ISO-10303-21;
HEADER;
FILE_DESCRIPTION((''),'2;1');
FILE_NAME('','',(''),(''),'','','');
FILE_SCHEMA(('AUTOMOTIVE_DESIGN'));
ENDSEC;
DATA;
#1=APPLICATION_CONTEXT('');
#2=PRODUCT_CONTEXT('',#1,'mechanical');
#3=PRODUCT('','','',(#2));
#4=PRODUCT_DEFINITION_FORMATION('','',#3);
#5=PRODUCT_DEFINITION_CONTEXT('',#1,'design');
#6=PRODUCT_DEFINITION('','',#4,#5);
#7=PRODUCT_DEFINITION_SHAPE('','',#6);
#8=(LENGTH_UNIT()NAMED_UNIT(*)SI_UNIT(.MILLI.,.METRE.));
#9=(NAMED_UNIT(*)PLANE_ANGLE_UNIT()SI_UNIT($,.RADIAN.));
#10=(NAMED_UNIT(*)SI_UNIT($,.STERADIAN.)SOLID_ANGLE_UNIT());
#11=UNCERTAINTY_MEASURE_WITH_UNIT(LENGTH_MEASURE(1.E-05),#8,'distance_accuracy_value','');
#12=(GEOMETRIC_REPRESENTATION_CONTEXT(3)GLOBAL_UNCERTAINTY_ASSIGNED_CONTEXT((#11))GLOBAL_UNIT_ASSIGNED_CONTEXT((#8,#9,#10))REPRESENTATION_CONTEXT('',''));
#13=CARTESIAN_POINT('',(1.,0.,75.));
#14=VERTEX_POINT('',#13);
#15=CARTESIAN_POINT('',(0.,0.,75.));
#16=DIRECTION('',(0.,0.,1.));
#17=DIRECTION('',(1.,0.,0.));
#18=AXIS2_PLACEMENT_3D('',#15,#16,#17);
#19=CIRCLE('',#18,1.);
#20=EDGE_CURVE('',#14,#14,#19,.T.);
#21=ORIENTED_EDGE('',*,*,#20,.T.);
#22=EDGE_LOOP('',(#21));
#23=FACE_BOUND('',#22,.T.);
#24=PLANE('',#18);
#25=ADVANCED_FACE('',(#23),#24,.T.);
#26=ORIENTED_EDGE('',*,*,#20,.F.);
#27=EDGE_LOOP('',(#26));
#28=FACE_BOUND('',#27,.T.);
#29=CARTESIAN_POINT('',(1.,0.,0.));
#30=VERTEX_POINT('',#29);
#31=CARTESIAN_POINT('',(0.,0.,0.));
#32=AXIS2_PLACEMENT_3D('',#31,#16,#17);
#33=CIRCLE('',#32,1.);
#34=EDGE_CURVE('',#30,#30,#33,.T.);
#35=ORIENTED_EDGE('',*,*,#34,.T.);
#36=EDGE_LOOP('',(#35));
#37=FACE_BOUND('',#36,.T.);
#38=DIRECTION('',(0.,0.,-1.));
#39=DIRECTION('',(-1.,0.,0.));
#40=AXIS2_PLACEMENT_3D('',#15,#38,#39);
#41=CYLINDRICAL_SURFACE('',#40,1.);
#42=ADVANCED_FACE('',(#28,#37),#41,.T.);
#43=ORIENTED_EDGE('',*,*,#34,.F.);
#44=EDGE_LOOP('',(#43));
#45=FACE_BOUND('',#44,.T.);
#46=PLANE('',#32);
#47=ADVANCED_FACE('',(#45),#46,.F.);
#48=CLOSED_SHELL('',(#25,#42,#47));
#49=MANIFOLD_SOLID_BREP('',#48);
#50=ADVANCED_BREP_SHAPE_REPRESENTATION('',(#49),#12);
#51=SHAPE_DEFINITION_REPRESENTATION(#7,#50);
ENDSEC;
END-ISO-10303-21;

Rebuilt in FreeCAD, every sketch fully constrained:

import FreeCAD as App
import Part
import Sketcher

V = App.Vector

doc = App.newDocument("Part")
body = doc.addObject("PartDesign::Body", "Body")

# Sketch on XY plane
sketch1 = body.newObject("Sketcher::SketchObject", "Sketch")
sketch1.AttachmentSupport = (doc.getObject("XY_Plane"), [""])
sketch1.MapMode = "FlatFace"
sketch1.addGeometry(Part.Circle(V(0, 0, 0), V(0, 0, 1), 1), False)
sketch1.addConstraint(Sketcher.Constraint("Coincident", 0, 3, -1, 1))
sketch1.addConstraint(Sketcher.Constraint("Diameter", 0, 2.0))
pad1 = body.newObject("PartDesign::Pad", "Pad")
pad1.Profile = sketch1
pad1.Length = 75

doc.recompute()
